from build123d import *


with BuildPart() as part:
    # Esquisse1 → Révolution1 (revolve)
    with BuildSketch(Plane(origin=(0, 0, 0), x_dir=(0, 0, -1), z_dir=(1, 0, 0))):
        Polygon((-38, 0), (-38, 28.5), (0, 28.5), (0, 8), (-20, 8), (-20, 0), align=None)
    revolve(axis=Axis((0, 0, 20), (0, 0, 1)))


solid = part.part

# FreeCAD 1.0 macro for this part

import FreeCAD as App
import Part
import Sketcher
from FreeCAD import Vector
Q = App.Units.Quantity


def add_polygon(sketch, points):
    """Adds a closed chain of lines whose ends are joined by coincident constraints."""
    first, n = sketch.GeometryCount, len(points)
    for a, b in zip(points, points[1:] + points[:1]):
        sketch.addGeometry(Part.LineSegment(App.Vector(*a, 0), App.Vector(*b, 0)), False)
    for i in range(n):
        sketch.addConstraint(Sketcher.Constraint("Coincident", first + i, 2, first + (i + 1) % n, 1))

doc = App.newDocument("Part")
body = doc.addObject("PartDesign::Body", "Body")

# Sketch on YZ plane
sketch1 = body.newObject("Sketcher::SketchObject", "Sketch")
sketch1.AttachmentSupport = (doc.getObject("YZ_Plane"), [""])
sketch1.MapMode = "FlatFace"
add_polygon(sketch1, [(28, 38), (0, 38), (0, 20), (8, 20), (8, 0), (28, 0)])  # lines 0-5
sketch1.addConstraint([
    Sketcher.Constraint("Horizontal", 0),
    Sketcher.Constraint("Vertical", 1),
    Sketcher.Constraint("Horizontal", 2),
    Sketcher.Constraint("Vertical", 3),
    Sketcher.Constraint("Horizontal", 4),
    Sketcher.Constraint("Vertical", 5),
    Sketcher.Constraint("PointOnObject", 0, 2, -2),
    Sketcher.Constraint("PointOnObject", 3, 2, -1),
    Sketcher.Constraint("DistanceX", 2, 1, 2, 2, Q("8 mm")),
    Sketcher.Constraint("DistanceY", 1, 2, 1, 1, Q("18 mm")),
    Sketcher.Constraint("DistanceY", 3, 2, 3, 1, Q("20 mm")),
    Sketcher.Constraint("DistanceX", 0, 2, 0, 1, Q("28.5 mm")),
])
revolution = body.newObject("PartDesign::Revolution", "Revolution")
revolution.Profile = sketch1
revolution.ReferenceAxis = (sketch1, ["V_Axis"])
revolution.Angle = 360

doc.recompute()
